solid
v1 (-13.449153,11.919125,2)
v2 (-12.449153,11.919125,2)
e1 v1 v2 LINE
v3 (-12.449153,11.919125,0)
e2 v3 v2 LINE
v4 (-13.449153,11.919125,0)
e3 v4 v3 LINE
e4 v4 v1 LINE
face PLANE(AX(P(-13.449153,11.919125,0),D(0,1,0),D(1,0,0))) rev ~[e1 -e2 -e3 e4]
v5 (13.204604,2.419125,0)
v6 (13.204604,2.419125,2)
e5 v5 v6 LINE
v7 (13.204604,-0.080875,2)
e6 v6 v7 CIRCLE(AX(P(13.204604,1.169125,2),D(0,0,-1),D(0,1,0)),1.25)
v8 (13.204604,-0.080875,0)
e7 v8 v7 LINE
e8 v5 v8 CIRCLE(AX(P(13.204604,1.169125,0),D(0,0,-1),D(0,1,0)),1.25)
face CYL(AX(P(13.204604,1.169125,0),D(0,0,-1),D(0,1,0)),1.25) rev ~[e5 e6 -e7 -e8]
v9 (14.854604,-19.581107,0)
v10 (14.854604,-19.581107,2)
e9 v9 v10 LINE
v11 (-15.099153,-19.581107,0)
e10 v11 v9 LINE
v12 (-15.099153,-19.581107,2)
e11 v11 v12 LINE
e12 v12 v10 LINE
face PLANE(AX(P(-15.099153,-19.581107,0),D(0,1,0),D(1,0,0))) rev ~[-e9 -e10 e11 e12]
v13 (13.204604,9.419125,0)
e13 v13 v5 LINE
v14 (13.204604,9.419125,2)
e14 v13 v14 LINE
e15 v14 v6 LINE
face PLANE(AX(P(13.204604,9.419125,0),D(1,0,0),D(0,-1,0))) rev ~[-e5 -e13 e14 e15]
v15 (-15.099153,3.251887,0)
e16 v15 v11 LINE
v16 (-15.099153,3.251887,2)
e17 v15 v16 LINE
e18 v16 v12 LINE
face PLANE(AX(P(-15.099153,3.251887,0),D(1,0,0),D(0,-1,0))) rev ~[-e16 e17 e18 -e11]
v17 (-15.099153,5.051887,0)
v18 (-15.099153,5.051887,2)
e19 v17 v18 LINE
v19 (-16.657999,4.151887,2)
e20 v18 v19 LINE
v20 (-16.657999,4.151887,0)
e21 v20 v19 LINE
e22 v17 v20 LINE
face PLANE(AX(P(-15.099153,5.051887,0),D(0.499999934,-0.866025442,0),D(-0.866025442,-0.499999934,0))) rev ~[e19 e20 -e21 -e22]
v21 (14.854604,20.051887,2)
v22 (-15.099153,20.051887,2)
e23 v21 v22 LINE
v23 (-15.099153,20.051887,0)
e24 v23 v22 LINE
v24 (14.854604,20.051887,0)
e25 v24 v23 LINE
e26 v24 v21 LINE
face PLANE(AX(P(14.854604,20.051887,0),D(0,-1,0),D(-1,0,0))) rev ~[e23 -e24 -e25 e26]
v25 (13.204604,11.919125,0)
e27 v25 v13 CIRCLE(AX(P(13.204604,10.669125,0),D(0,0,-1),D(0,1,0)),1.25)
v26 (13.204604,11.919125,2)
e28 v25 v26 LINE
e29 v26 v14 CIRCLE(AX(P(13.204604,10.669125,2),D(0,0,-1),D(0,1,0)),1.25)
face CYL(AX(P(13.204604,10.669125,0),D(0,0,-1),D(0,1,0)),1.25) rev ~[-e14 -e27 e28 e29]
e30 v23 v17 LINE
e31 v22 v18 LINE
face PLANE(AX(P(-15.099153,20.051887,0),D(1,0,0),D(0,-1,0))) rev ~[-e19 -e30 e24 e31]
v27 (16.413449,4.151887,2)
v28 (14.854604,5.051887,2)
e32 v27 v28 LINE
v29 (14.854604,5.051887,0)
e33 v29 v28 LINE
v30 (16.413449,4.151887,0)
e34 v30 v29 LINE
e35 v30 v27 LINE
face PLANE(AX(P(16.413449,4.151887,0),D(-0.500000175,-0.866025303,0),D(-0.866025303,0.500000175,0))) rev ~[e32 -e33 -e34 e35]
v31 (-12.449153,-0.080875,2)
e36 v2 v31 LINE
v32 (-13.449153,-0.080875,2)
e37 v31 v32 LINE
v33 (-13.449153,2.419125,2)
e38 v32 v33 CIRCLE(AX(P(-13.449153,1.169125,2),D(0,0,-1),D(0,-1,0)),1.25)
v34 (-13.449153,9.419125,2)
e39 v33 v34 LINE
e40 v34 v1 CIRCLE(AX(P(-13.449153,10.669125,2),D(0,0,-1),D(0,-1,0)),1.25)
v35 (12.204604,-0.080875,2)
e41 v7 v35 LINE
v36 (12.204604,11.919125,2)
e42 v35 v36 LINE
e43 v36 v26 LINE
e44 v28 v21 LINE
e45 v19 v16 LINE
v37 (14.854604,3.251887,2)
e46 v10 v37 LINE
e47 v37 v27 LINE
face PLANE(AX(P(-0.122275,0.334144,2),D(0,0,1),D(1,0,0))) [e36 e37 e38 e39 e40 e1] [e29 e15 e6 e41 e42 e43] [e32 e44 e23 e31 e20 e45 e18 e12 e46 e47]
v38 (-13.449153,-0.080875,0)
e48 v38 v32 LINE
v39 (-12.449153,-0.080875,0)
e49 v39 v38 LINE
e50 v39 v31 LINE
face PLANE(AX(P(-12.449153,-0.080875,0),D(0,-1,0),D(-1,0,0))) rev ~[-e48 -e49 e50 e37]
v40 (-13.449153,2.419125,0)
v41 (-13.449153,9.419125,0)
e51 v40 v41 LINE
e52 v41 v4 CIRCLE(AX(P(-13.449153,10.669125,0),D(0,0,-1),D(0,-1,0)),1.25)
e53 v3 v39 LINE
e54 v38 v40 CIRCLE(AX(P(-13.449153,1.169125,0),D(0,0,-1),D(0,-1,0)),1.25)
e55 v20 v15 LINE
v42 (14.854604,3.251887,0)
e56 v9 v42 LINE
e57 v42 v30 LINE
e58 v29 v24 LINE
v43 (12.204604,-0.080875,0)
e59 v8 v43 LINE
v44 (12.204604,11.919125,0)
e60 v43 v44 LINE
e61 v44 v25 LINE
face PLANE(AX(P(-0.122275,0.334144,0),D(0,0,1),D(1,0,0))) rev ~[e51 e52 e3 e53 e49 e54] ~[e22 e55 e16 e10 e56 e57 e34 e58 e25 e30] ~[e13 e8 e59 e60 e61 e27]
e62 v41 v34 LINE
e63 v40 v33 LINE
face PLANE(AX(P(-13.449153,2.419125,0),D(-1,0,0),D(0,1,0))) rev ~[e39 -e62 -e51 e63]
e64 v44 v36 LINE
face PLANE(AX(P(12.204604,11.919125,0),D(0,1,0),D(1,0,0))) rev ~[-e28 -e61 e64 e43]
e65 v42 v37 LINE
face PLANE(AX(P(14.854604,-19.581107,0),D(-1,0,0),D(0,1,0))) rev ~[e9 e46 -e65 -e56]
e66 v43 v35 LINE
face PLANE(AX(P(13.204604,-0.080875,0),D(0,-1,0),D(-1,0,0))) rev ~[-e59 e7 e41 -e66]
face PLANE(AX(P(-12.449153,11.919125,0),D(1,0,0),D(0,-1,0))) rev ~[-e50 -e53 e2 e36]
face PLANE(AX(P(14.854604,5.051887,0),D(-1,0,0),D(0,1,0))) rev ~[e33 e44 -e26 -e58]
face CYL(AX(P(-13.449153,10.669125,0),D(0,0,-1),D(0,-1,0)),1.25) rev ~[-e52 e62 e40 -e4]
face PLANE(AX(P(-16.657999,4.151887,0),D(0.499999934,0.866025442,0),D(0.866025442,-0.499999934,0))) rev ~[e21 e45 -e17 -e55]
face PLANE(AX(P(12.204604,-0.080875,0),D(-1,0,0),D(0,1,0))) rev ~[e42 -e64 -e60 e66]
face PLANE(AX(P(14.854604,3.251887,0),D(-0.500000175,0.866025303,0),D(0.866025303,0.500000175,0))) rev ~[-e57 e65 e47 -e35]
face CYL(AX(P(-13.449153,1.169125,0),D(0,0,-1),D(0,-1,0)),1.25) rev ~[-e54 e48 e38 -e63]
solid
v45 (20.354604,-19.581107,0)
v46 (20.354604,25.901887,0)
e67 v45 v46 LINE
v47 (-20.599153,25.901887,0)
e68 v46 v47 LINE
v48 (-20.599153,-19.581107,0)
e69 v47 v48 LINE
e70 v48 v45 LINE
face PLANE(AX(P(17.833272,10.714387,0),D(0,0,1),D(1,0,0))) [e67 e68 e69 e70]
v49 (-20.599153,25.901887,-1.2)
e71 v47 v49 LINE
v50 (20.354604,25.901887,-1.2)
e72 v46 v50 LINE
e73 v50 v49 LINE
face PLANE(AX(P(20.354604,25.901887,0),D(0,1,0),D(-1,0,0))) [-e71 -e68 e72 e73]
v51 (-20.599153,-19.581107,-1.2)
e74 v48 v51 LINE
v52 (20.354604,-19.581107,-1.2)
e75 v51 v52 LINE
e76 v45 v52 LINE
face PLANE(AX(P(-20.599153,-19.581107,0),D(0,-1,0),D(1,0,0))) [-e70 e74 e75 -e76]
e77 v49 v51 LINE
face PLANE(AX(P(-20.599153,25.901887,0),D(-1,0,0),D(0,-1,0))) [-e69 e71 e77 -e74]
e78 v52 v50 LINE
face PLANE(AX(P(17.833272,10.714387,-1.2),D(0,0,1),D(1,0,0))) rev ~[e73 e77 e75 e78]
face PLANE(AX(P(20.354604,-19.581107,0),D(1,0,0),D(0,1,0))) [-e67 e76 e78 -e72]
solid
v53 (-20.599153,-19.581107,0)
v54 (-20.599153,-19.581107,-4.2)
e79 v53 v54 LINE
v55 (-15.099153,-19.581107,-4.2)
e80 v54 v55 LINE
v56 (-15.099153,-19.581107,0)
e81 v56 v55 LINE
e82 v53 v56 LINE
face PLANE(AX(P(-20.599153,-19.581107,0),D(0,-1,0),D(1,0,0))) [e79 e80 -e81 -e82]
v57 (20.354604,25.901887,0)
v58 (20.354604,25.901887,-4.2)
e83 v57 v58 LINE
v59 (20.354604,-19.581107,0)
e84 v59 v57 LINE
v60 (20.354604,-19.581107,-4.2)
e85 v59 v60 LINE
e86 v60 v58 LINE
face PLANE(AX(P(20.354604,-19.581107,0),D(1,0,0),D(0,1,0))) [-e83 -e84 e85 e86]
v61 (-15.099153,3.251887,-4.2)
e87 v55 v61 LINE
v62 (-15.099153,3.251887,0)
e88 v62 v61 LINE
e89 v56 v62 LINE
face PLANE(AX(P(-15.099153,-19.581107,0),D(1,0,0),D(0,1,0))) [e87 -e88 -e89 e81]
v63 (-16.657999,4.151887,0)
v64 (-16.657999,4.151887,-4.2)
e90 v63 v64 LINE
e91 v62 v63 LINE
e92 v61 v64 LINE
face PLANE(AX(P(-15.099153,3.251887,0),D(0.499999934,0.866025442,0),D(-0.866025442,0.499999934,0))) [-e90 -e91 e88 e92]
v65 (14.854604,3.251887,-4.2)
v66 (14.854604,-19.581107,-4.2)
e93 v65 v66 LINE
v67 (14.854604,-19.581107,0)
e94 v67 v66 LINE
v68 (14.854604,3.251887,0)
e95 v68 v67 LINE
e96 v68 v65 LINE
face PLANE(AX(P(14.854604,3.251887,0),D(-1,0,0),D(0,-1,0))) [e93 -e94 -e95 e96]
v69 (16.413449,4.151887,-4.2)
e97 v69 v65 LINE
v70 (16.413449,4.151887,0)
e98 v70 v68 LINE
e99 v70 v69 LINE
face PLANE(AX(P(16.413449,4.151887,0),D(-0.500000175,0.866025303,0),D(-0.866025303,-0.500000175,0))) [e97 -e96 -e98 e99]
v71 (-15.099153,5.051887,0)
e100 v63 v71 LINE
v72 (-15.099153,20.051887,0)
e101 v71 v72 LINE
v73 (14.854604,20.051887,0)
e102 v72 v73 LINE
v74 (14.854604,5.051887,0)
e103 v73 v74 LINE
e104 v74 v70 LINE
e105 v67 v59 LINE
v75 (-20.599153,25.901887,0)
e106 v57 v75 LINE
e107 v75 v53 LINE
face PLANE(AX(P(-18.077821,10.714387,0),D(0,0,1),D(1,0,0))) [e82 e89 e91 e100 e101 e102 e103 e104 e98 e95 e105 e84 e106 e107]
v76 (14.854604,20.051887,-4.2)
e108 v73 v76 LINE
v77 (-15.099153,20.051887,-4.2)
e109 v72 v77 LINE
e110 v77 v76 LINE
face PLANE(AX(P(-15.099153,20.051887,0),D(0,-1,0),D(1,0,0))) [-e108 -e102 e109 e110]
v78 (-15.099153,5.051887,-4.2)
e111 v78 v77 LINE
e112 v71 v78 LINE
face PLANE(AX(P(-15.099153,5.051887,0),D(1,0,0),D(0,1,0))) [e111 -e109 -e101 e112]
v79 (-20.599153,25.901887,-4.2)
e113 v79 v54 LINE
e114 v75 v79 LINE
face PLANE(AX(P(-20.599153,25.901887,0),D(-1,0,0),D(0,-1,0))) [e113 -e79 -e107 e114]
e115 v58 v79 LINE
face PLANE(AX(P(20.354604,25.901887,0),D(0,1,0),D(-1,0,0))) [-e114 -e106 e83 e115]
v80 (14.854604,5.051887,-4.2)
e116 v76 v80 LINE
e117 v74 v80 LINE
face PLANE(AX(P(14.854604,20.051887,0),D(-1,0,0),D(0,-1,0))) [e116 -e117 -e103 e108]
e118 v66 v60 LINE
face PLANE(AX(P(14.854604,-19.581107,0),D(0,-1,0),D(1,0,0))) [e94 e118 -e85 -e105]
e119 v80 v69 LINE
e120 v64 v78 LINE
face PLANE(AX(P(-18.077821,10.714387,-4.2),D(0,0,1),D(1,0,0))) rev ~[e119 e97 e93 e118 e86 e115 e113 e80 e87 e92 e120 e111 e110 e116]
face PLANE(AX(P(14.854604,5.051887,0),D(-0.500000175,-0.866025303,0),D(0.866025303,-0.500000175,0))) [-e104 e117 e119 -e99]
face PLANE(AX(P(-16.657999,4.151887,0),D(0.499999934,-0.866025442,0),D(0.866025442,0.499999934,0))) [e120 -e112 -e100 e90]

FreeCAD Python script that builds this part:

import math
import FreeCAD as App
import Part
import Sketcher
from FreeCAD import Vector
Q = App.Units.Quantity

doc = App.newDocument("Part")
body = doc.addObject("PartDesign::Body", "Body")

# Sketch on XY plane
sketch1 = doc.addObject("Sketcher::SketchObject", "Sketch")
body.addObject(sketch1)
sketch1.AttachmentSupport = (doc.XY_Plane, [""])
sketch1.MapMode = "FlatFace"
sketch1.addGeometry([
    Part.LineSegment(Vector(-15.1, 3.3, 0), Vector(-15.1, -19.6, 0)),  # 0
    Part.LineSegment(Vector(-15.1, -19.6, 0), Vector(14.9, -19.6, 0)),  # 1
    Part.LineSegment(Vector(14.9, -19.6, 0), Vector(14.9, 3.3, 0)),  # 2
    Part.LineSegment(Vector(14.9, 3.3, 0), Vector(16.4, 4.2, 0)),  # 3
    Part.LineSegment(Vector(16.4, 4.2, 0), Vector(14.9, 5.1, 0)),  # 4
    Part.LineSegment(Vector(14.9, 5.1, 0), Vector(14.9, 20.1, 0)),  # 5
    Part.LineSegment(Vector(14.9, 20.1, 0), Vector(-15.1, 20.1, 0)),  # 6
    Part.LineSegment(Vector(-15.1, 20.1, 0), Vector(-15.1, 5.1, 0)),  # 7
    Part.LineSegment(Vector(-15.1, 5.1, 0), Vector(-16.7, 4.2, 0)),  # 8
    Part.LineSegment(Vector(-16.7, 4.2, 0), Vector(-15.1, 3.3, 0)),  # 9
    Part.LineSegment(Vector(-13.4, 2.4, 0), Vector(-13.4, 9.4, 0)),  # 10
    Part.ArcOfCircle(Part.Circle(Vector(-13.4, 10.7, 0), Vector(0, 0, 1), 1.2), math.radians(90), math.radians(270)),  # 11
    Part.LineSegment(Vector(-13.4, 11.9, 0), Vector(-12.4, 11.9, 0)),  # 12
    Part.LineSegment(Vector(-12.4, 11.9, 0), Vector(-12.4, -0.1, 0)),  # 13
    Part.LineSegment(Vector(-12.4, -0.1, 0), Vector(-13.4, -0.1, 0)),  # 14
    Part.ArcOfCircle(Part.Circle(Vector(-13.4, 1.2, 0), Vector(0, 0, 1), 1.2), math.radians(90), math.radians(270)),  # 15
    Part.LineSegment(Vector(13.2, 9.4, 0), Vector(13.2, 2.4, 0)),  # 16
    Part.ArcOfCircle(Part.Circle(Vector(13.2, 1.2, 0), Vector(0, 0, 1), 1.2), math.radians(-90), math.radians(90)),  # 17
    Part.LineSegment(Vector(13.2, -0.1, 0), Vector(12.2, -0.1, 0)),  # 18
    Part.LineSegment(Vector(12.2, -0.1, 0), Vector(12.2, 11.9, 0)),  # 19
    Part.LineSegment(Vector(12.2, 11.9, 0), Vector(13.2, 11.9, 0)),  # 20
    Part.ArcOfCircle(Part.Circle(Vector(13.2, 10.7, 0), Vector(0, 0, 1), 1.2), math.radians(-90), math.radians(90)),  # 21
], False)
sketch1.addConstraint([
    Sketcher.Constraint("Coincident", 0, 2, 1, 1),
    Sketcher.Constraint("Coincident", 1, 2, 2, 1),
    Sketcher.Constraint("Coincident", 2, 2, 3, 1),
    Sketcher.Constraint("Coincident", 3, 2, 4, 1),
    Sketcher.Constraint("Coincident", 4, 2, 5, 1),
    Sketcher.Constraint("Coincident", 5, 2, 6, 1),
    Sketcher.Constraint("Coincident", 6, 2, 7, 1),
    Sketcher.Constraint("Coincident", 7, 2, 8, 1),
    Sketcher.Constraint("Coincident", 8, 2, 9, 1),
    Sketcher.Constraint("Coincident", 9, 2, 0, 1),
    Sketcher.Constraint("Coincident", 10, 2, 11, 2),
    Sketcher.Constraint("Tangent", 11, 1, 12, 1),
    Sketcher.Constraint("Coincident", 12, 2, 13, 1),
    Sketcher.Constraint("Coincident", 13, 2, 14, 1),
    Sketcher.Constraint("Tangent", 14, 2, 15, 2),
    Sketcher.Constraint("Coincident", 15, 1, 10, 1),
    Sketcher.Constraint("Coincident", 16, 2, 17, 2),
    Sketcher.Constraint("Tangent", 17, 1, 18, 1),
    Sketcher.Constraint("Coincident", 18, 2, 19, 1),
    Sketcher.Constraint("Coincident", 19, 2, 20, 1),
    Sketcher.Constraint("Tangent", 20, 2, 21, 2),
    Sketcher.Constraint("Coincident", 21, 1, 16, 1),
    Sketcher.Constraint("Vertical", 0),
    Sketcher.Constraint("Horizontal", 1),
    Sketcher.Constraint("Vertical", 2),
    Sketcher.Constraint("Vertical", 5),
    Sketcher.Constraint("Horizontal", 6),
    Sketcher.Constraint("Vertical", 7),
    Sketcher.Constraint("Vertical", 10),
    Sketcher.Constraint("Horizontal", 12),
    Sketcher.Constraint("Vertical", 13),
    Sketcher.Constraint("Horizontal", 14),
    Sketcher.Constraint("Vertical", 16),
    Sketcher.Constraint("Horizontal", 18),
    Sketcher.Constraint("Vertical", 19),
    Sketcher.Constraint("Horizontal", 20),
    Sketcher.Constraint("Equal", 11, 15),
    Sketcher.Constraint("Equal", 15, 17),
    Sketcher.Constraint("Equal", 17, 21),
    Sketcher.Constraint("Parallel", 3, 8),
    Sketcher.Constraint("Parallel", 4, 9),
    Sketcher.Constraint("Horizontal", 15, 3, 17, 3),
    Sketcher.Constraint("Horizontal", 11, 3, 21, 3),
    Sketcher.Constraint("Horizontal", 4, 2, 7, 2),
    Sketcher.Constraint("Horizontal", 3, 2, 8, 2),
    Sketcher.Constraint("Horizontal", 2, 2, 9, 2),
    Sketcher.Constraint("Vertical", 11, 3, 15, 3),
    Sketcher.Constraint("Vertical", 17, 3, 21, 3),
    Sketcher.Constraint("Vertical", 2, 2, 4, 2),
    Sketcher.Constraint("Vertical", 0, 2, 6, 2),
    Sketcher.Constraint("Vertical", 15, 3, 10, 2),
    Sketcher.Constraint("Vertical", 21, 3, 16, 2),
    Sketcher.Constraint("Equal", 14, 18),
    Sketcher.Constraint("DistanceX", 12, 1, 12, 2, Q("1 mm")),
    Sketcher.Constraint("DistanceY", 5, 1, 5, 2, Q("15 mm")),
    Sketcher.Constraint("DistanceY", 10, 1, 10, 2, Q("7 mm")),
    Sketcher.Constraint("DistanceY", 13, 2, 13, 1, Q("12 mm")),
    Sketcher.Constraint("Angle", 3, Q("30.000012 deg")),
    Sketcher.Constraint("Distance", 3, Q("1.799999 mm")),
    Sketcher.Constraint("DistanceX", 0, 2, 15, 3, Q("1.65 mm")),
    Sketcher.Constraint("DistanceX", 17, 3, 1, 2, Q("1.65 mm")),
    Sketcher.Constraint("DistanceX", 8, 2, -1, 1, Q("16.657999 mm")),
    Sketcher.Constraint("DistanceX", 1, 1, 1, 2, Q("29.953757 mm")),
    Sketcher.Constraint("DistanceY", 0, 2, 0, 1, Q("22.832994 mm")),
    Sketcher.Constraint("DistanceY", 0, 2, 11, 3, Q("30.250232 mm")),
    Sketcher.Constraint("DistanceY", -1, 1, 11, 3, Q("10.669125 mm")),
])
pad1 = doc.addObject("PartDesign::Pad", "Pad")
body.addObject(pad1)
pad1.Profile = sketch1
pad1.Length = 2
body2 = doc.addObject("PartDesign::Body", "Body001")

# Sketch on XY plane
sketch2 = doc.addObject("Sketcher::SketchObject", "Sketch001")
body2.addObject(sketch2)
sketch2.AttachmentSupport = (doc.getObject("XY_Plane001"), [""])
sketch2.MapMode = "FlatFace"
sketch2.addGeometry([
    Part.LineSegment(Vector(-20.6, 25.9, 0), Vector(-20.6, -19.6, 0)),  # 0
    Part.LineSegment(Vector(-20.6, -19.6, 0), Vector(-15.1, -19.6, 0)),  # 1
    Part.LineSegment(Vector(-15.1, -19.6, 0), Vector(-15.1, 3.3, 0)),  # 2
    Part.LineSegment(Vector(-15.1, 3.3, 0), Vector(-16.7, 4.2, 0)),  # 3
    Part.LineSegment(Vector(-16.7, 4.2, 0), Vector(-15.1, 5.1, 0)),  # 4
    Part.LineSegment(Vector(-15.1, 5.1, 0), Vector(-15.1, 20.1, 0)),  # 5
    Part.LineSegment(Vector(-15.1, 20.1, 0), Vector(14.9, 20.1, 0)),  # 6
    Part.LineSegment(Vector(14.9, 20.1, 0), Vector(14.9, 5.1, 0)),  # 7
    Part.LineSegment(Vector(14.9, 5.1, 0), Vector(16.4, 4.2, 0)),  # 8
    Part.LineSegment(Vector(16.4, 4.2, 0), Vector(14.9, 3.3, 0)),  # 9
    Part.LineSegment(Vector(14.9, 3.3, 0), Vector(14.9, -19.6, 0)),  # 10
    Part.LineSegment(Vector(14.9, -19.6, 0), Vector(20.4, -19.6, 0)),  # 11
    Part.LineSegment(Vector(20.4, -19.6, 0), Vector(20.4, 25.9, 0)),  # 12
    Part.LineSegment(Vector(20.4, 25.9, 0), Vector(-20.6, 25.9, 0)),  # 13
], False)
sketch2.addConstraint([
    Sketcher.Constraint("Coincident", 0, 2, 1, 1),
    Sketcher.Constraint("Coincident", 1, 2, 2, 1),
    Sketcher.Constraint("Coincident", 2, 2, 3, 1),
    Sketcher.Constraint("Coincident", 3, 2, 4, 1),
    Sketcher.Constraint("Coincident", 4, 2, 5, 1),
    Sketcher.Constraint("Coincident", 5, 2, 6, 1),
    Sketcher.Constraint("Coincident", 6, 2, 7, 1),
    Sketcher.Constraint("Coincident", 7, 2, 8, 1),
    Sketcher.Constraint("Coincident", 8, 2, 9, 1),
    Sketcher.Constraint("Coincident", 9, 2, 10, 1),
    Sketcher.Constraint("Coincident", 10, 2, 11, 1),
    Sketcher.Constraint("Coincident", 11, 2, 12, 1),
    Sketcher.Constraint("Coincident", 12, 2, 13, 1),
    Sketcher.Constraint("Coincident", 13, 2, 0, 1),
    Sketcher.Constraint("Vertical", 0),
    Sketcher.Constraint("Horizontal", 1),
    Sketcher.Constraint("Vertical", 2),
    Sketcher.Constraint("Vertical", 5),
    Sketcher.Constraint("Horizontal", 6),
    Sketcher.Constraint("Vertical", 7),
    Sketcher.Constraint("Vertical", 10),
    Sketcher.Constraint("Horizontal", 11),
    Sketcher.Constraint("Vertical", 12),
    Sketcher.Constraint("Horizontal", 13),
    Sketcher.Constraint("Parallel", 3, 8),
    Sketcher.Constraint("Parallel", 4, 9),
    Sketcher.Constraint("Horizontal", 4, 2, 7, 2),
    Sketcher.Constraint("Horizontal", 3, 2, 8, 2),
    Sketcher.Constraint("Horizontal", 2, 2, 9, 2),
    Sketcher.Constraint("Horizontal", 1, 2, 10, 2),
    Sketcher.Constraint("Vertical", 2, 2, 4, 2),
    Sketcher.Constraint("Vertical", 7, 2, 9, 2),
    Sketcher.Constraint("Equal", 1, 11),
    Sketcher.Constraint("DistanceY", 5, 1, 5, 2, Q("15 mm")),
    Sketcher.Constraint("Angle", 3, Q("150.000004 deg")),
    Sketcher.Constraint("DistanceX", 1, 1, 1, 2, Q("5.5 mm")),
    Sketcher.Constraint("Distance", 3, Q("1.8 mm")),
    Sketcher.Constraint("DistanceY", 6, 2, 12, 2, Q("5.85 mm")),
    Sketcher.Constraint("DistanceX", 3, 2, -1, 1, Q("16.657999 mm")),
    Sketcher.Constraint("DistanceX", 6, 1, 6, 2, Q("29.953757 mm")),
    Sketcher.Constraint("DistanceY", 0, 2, 0, 1, Q("45.482994 mm")),
    Sketcher.Constraint("DistanceY", 0, 2, -1, 1, Q("19.581107 mm")),
])
pad2 = doc.addObject("PartDesign::Pad", "Pad001")
body2.addObject(pad2)
pad2.Profile = sketch2
pad2.Length = 4.2
pad2.Reversed = True
body3 = doc.addObject("PartDesign::Body", "Body002")

# Sketch on XY plane
sketch3 = doc.addObject("Sketcher::SketchObject", "Sketch002")
body3.addObject(sketch3)
sketch3.AttachmentSupport = (doc.getObject("XY_Plane002"), [""])
sketch3.MapMode = "FlatFace"
sketch3.addGeometry([
    Part.LineSegment(Vector(20, 26, 0), Vector(-21, 26, 0)),
    Part.LineSegment(Vector(-21, 26, 0), Vector(-21, -20, 0)),
    Part.LineSegment(Vector(-21, -20, 0), Vector(20, -20, 0)),
    Part.LineSegment(Vector(20, -20, 0), Vector(20, 26, 0)),
], False)
sketch3.addConstraint([
    Sketcher.Constraint("Coincident", 0, 2, 1, 1),
    Sketcher.Constraint("Coincident", 1, 2, 2, 1),
    Sketcher.Constraint("Coincident", 2, 2, 3, 1),
    Sketcher.Constraint("Coincident", 3, 2, 0, 1),
    Sketcher.Constraint("Horizontal", 0),
    Sketcher.Constraint("Vertical", 1),
    Sketcher.Constraint("Horizontal", 2),
    Sketcher.Constraint("Vertical", 3),
    Sketcher.Constraint("DistanceX", 0, 2, 0, 1, Q("40.953757 mm")),
    Sketcher.Constraint("DistanceY", 1, 2, 1, 1, Q("45.482994 mm")),
    Sketcher.Constraint("DistanceX", 0, 2, -1, 1, Q("20.599153 mm")),
    Sketcher.Constraint("DistanceY", -1, 1, 0, 2, Q("25.901887 mm")),
])
pad3 = doc.addObject("PartDesign::Pad", "Pad002")
body3.addObject(pad3)
pad3.Profile = sketch3
pad3.Length = 1.2
pad3.Reversed = True

doc.recompute()
